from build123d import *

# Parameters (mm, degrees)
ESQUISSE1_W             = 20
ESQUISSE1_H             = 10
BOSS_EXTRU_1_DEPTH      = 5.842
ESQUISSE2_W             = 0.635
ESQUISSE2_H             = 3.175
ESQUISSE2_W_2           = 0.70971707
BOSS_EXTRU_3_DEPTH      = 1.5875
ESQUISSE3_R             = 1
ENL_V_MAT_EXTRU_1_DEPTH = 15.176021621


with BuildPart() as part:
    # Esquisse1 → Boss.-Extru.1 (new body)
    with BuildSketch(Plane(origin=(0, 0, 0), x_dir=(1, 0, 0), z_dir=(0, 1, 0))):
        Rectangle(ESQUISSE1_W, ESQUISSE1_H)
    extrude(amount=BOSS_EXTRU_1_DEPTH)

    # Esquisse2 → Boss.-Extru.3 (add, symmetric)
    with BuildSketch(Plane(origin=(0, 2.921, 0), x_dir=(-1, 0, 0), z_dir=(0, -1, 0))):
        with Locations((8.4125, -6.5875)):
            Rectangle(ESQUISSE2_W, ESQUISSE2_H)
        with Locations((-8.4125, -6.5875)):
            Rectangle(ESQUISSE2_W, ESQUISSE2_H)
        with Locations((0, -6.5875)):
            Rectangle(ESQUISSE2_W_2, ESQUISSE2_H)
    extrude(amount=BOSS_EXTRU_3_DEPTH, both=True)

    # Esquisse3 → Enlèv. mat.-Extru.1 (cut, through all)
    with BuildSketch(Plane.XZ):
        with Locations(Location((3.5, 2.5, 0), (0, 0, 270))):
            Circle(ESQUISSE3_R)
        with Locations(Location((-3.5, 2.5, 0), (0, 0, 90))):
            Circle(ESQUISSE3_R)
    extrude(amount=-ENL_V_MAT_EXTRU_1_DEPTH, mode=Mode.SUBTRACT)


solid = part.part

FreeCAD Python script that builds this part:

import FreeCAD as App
import Part
import Sketcher

V = App.Vector
Q = App.Units.Quantity


def add_polygon(sketch, points):
    """Adds a closed chain of lines whose ends are joined by coincident constraints."""
    first, n = sketch.GeometryCount, len(points)
    for a, b in zip(points, points[1:] + points[:1]):
        sketch.addGeometry(Part.LineSegment(App.Vector(*a, 0), App.Vector(*b, 0)), False)
    for i in range(n):
        sketch.addConstraint(Sketcher.Constraint("Coincident", first + i, 2, first + (i + 1) % n, 1))

doc = App.newDocument("Part")
body = doc.addObject("PartDesign::Body", "Body")

sketch1 = body.newObject("Sketcher::SketchObject", "Sketch")
sketch1.AttachmentSupport = (doc.getObject("XZ_Plane"), [""])
sketch1.MapMode = "FlatFace"
add_polygon(sketch1, [(-10, -5), (-10, 5), (10, 5), (10, -5)])
sketch1.addConstraint(Sketcher.Constraint("Vertical", 0))
sketch1.addConstraint(Sketcher.Constraint("Horizontal", 1))
sketch1.addConstraint(Sketcher.Constraint("Vertical", 2))
sketch1.addConstraint(Sketcher.Constraint("Horizontal", 3))
sketch1.addConstraint(Sketcher.Constraint("Symmetric", 0, 2, 2, 2, -1, 1))
sketch1.addConstraint(Sketcher.Constraint("DistanceX", 1, 1, 1, 2, 20.0))
sketch1.addConstraint(Sketcher.Constraint("DistanceY", 0, 1, 0, 2, 10.0))
pad1 = body.newObject("PartDesign::Pad", "Pad")
pad1.Profile = sketch1
pad1.Length = Q("0.23 in")
pad1.Reversed = True

sketch2 = body.newObject("Sketcher::SketchObject", "Sketch001")
sketch2.AttachmentSupport = (doc.getObject("XZ_Plane"), [""])
sketch2.MapMode = "FlatFace"
sketch2.AttachmentOffset = App.Placement(V(0, 0, -0.115 * 25.4), App.Rotation())
add_polygon(sketch2, [(-8.095, 5), (-8.095, 8.175), (-8.73, 8.175), (-8.73, 5)])
add_polygon(sketch2, [(8.73, 5), (8.73, 8.175), (8.095, 8.175), (8.095, 5)])
add_polygon(sketch2, [(0.354859, 5), (0.354859, 8.175), (-0.354859, 8.175), (-0.354859, 5)])
sketch2.addConstraint(Sketcher.Constraint("Vertical", 0))
sketch2.addConstraint(Sketcher.Constraint("Horizontal", 1))
sketch2.addConstraint(Sketcher.Constraint("Vertical", 2))
sketch2.addConstraint(Sketcher.Constraint("Horizontal", 3))
sketch2.addConstraint(Sketcher.Constraint("Vertical", 4))
sketch2.addConstraint(Sketcher.Constraint("Horizontal", 5))
sketch2.addConstraint(Sketcher.Constraint("Vertical", 6))
sketch2.addConstraint(Sketcher.Constraint("Horizontal", 7))
sketch2.addConstraint(Sketcher.Constraint("Vertical", 8))
sketch2.addConstraint(Sketcher.Constraint("Horizontal", 9))
sketch2.addConstraint(Sketcher.Constraint("Vertical", 10))
sketch2.addConstraint(Sketcher.Constraint("Horizontal", 11))
sketch2.addConstraint(Sketcher.Constraint("Symmetric", 1, 2, 4, 2, -2))
sketch2.addConstraint(Sketcher.Constraint("Symmetric", 3, 2, 6, 2, -2))
sketch2.addConstraint(Sketcher.Constraint("Horizontal", 5, 2, 8, 2))
sketch2.addConstraint(Sketcher.Constraint("Horizontal", 7, 2, 10, 2))
sketch2.addConstraint(Sketcher.Constraint("DistanceX", 1, 2, 1, 1, Q("0.025 in")))
sketch2.addConstraint(Sketcher.Constraint("DistanceY", 0, 1, 0, 2, Q("0.125 in")))
sketch2.addConstraint(Sketcher.Constraint("DistanceX", 0, 2, -1, 1, 8.095))
sketch2.addConstraint(Sketcher.Constraint("DistanceY", -1, 1, 0, 2, 8.175))
sketch2.addConstraint(Sketcher.Constraint("DistanceX", 9, 2, 9, 1, 0.709717))
sketch2.addConstraint(Sketcher.Constraint("DistanceX", -1, 1, 8, 2, 0.354859))
pad2 = body.newObject("PartDesign::Pad", "Pad001")
pad2.Profile = sketch2
pad2.Length = Q("0.125 in")
pad2.Midplane = True

sketch3 = body.newObject("Sketcher::SketchObject", "Sketch002")
sketch3.AttachmentSupport = (doc.getObject("XZ_Plane"), [""])
sketch3.MapMode = "FlatFace"
sketch3.addGeometry(Part.Circle(V(3.5, 2.5, 0), V(0, 0, 1), 1), False)
sketch3.addGeometry(Part.Circle(V(-3.5, 2.5, 0), V(0, 0, 1), 1), False)
sketch3.addConstraint(Sketcher.Constraint("Equal", 0, 1))
sketch3.addConstraint(Sketcher.Constraint("Symmetric", 0, 3, 1, 3, -2))
sketch3.addConstraint(Sketcher.Constraint("Diameter", 0, 2.0))
sketch3.addConstraint(Sketcher.Constraint("DistanceX", -1, 1, 0, 3, 3.5))
sketch3.addConstraint(Sketcher.Constraint("DistanceY", -1, 1, 0, 3, 2.5))
pocket1 = body.newObject("PartDesign::Pocket", "Pocket")
pocket1.Profile = sketch3
pocket1.Type = "ThroughAll"

doc.recompute()
